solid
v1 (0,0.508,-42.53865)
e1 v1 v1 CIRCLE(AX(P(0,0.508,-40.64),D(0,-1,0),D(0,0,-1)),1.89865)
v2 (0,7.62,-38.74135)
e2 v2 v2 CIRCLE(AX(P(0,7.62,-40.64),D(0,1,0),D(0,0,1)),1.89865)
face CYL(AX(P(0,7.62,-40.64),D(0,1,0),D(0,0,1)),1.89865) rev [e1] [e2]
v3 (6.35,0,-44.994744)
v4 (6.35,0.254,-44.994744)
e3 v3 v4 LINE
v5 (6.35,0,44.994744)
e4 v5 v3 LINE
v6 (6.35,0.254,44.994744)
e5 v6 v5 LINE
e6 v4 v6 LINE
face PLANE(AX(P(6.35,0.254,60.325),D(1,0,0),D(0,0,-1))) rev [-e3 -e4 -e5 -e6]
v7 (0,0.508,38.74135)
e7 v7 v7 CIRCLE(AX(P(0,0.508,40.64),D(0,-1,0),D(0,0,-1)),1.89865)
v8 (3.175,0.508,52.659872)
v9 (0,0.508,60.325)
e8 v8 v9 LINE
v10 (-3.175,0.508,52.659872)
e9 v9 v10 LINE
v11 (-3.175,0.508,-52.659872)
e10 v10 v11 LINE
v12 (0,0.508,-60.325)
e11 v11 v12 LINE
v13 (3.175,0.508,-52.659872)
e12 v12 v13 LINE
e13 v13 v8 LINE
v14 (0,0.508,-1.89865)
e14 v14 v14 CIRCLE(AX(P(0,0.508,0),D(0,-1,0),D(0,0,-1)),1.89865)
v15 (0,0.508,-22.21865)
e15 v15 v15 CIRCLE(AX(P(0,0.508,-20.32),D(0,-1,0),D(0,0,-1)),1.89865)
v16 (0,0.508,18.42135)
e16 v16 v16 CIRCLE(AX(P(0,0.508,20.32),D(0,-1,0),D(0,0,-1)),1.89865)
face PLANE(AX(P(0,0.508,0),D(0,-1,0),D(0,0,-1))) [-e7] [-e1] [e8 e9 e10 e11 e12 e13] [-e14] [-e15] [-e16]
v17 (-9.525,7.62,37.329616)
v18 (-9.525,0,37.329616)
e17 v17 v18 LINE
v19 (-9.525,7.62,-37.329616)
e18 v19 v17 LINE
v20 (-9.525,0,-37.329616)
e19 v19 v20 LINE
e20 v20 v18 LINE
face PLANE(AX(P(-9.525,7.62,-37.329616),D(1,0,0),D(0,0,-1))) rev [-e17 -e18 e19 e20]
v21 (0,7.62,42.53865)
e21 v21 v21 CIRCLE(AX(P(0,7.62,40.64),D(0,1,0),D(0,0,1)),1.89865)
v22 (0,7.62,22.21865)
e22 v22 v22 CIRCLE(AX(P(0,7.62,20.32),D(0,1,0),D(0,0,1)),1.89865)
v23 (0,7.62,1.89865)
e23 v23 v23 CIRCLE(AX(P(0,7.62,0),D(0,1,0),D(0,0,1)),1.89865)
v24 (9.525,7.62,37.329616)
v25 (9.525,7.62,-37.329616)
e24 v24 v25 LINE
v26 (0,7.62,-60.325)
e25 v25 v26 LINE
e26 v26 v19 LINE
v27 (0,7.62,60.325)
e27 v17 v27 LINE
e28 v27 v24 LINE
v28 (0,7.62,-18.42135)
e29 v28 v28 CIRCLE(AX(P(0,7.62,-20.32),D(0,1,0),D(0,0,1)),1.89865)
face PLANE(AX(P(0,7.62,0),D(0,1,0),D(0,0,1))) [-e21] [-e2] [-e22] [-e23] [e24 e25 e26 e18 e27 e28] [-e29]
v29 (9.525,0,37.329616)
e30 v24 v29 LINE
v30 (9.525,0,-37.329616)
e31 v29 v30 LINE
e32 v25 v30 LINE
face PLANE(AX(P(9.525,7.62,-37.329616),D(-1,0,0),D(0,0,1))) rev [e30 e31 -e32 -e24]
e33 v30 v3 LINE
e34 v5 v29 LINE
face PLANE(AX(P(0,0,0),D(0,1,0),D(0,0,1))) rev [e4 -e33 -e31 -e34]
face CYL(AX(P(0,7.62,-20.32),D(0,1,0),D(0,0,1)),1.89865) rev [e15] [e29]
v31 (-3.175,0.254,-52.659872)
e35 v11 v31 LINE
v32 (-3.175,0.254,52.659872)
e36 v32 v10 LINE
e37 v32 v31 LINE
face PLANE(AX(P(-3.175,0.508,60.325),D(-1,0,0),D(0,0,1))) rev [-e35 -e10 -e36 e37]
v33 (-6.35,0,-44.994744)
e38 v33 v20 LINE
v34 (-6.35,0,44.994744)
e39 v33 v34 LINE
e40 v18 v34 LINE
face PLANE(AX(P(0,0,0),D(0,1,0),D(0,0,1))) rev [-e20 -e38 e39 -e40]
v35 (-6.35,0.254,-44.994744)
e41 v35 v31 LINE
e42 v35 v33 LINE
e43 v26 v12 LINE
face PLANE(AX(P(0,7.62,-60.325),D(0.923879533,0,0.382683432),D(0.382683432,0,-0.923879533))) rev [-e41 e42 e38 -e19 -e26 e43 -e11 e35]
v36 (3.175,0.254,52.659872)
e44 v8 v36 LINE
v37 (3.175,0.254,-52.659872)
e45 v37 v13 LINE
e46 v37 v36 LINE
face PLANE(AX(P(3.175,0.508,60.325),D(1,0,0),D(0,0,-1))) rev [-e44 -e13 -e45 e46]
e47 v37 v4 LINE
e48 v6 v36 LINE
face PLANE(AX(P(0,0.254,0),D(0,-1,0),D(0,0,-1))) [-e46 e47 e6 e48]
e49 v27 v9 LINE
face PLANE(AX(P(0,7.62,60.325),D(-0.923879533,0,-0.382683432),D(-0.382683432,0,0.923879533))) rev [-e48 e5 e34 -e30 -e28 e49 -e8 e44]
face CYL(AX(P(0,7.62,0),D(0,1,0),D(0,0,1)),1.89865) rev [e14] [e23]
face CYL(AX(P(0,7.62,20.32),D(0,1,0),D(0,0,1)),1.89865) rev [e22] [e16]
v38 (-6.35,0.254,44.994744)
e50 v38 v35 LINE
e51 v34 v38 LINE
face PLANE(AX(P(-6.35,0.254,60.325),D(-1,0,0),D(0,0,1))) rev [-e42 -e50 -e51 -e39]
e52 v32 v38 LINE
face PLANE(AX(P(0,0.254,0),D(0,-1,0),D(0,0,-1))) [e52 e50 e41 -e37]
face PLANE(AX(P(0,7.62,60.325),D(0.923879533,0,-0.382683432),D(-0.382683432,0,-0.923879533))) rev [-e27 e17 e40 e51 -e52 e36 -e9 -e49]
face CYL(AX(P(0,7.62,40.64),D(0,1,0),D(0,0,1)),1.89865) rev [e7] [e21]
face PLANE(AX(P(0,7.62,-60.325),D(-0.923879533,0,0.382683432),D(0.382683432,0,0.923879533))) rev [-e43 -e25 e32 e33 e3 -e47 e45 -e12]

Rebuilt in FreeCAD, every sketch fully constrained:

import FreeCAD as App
import Part
import Sketcher
from FreeCAD import Vector
Q = App.Units.Quantity

doc = App.newDocument("Part")
body = doc.addObject("PartDesign::Body", "Body")

# Sketch on XZ plane
sketch1 = body.newObject("Sketcher::SketchObject", "Sketch")
sketch1.AttachmentSupport = (doc.getObject("XZ_Plane"), [""])
sketch1.MapMode = "FlatFace"
sketch1.addGeometry([
    Part.LineSegment(Vector(0, -60, 0), Vector(-10, -37, 0)),  # 0
    Part.LineSegment(Vector(-10, -37, 0), Vector(-10, 37, 0)),  # 1
    Part.LineSegment(Vector(-10, 37, 0), Vector(0, 60, 0)),  # 2
    Part.LineSegment(Vector(0, 60, 0), Vector(10, 37, 0)),  # 3
    Part.LineSegment(Vector(10, 37, 0), Vector(10, -37, 0)),  # 4
    Part.LineSegment(Vector(10, -37, 0), Vector(0, -60, 0)),  # 5
], False)
sketch1.addConstraint([
    Sketcher.Constraint("Coincident", 0, 2, 1, 1),
    Sketcher.Constraint("Coincident", 1, 2, 2, 1),
    Sketcher.Constraint("Coincident", 2, 2, 3, 1),
    Sketcher.Constraint("Coincident", 3, 2, 4, 1),
    Sketcher.Constraint("Coincident", 4, 2, 5, 1),
    Sketcher.Constraint("Coincident", 5, 2, 0, 1),
    Sketcher.Constraint("Vertical", 1),
    Sketcher.Constraint("Vertical", 4),
    Sketcher.Constraint("Symmetric", 0, 2, 3, 2, -1, 1),
    Sketcher.Constraint("Symmetric", 2, 2, 5, 2, -1, 1),
    Sketcher.Constraint("PointOnObject", 2, 2, -2),
    Sketcher.Constraint("Parallel", 2, 5),
    Sketcher.Constraint("Horizontal", 1, 2, 3, 2),
    Sketcher.Constraint("Angle", 0, Q("112.5 deg")),
    Sketcher.Constraint("DistanceX", 1, 2, 3, 2, Q("0.75 in")),
    Sketcher.Constraint("DistanceY", 5, 2, 2, 2, Q("4.75 in")),
])
pad1 = body.newObject("PartDesign::Pad", "Pad")
pad1.Profile = sketch1
pad1.Length = Q("0.3 in")
pad1.Reversed = True

# Sketch on XZ plane
sketch2 = body.newObject("Sketcher::SketchObject", "Sketch001")
sketch2.AttachmentSupport = (doc.getObject("XZ_Plane"), [""])
sketch2.MapMode = "FlatFace"
sketch2.addGeometry([
    Part.LineSegment(Vector(-6, 60, 0), Vector(-6, -60, 0)),
    Part.LineSegment(Vector(-6, -60, 0), Vector(6, -60, 0)),
    Part.LineSegment(Vector(6, -60, 0), Vector(6, 60, 0)),
    Part.LineSegment(Vector(6, 60, 0), Vector(-6, 60, 0)),
], False)
sketch2.addConstraint([
    Sketcher.Constraint("Coincident", 0, 2, 1, 1),
    Sketcher.Constraint("Coincident", 1, 2, 2, 1),
    Sketcher.Constraint("Coincident", 2, 2, 3, 1),
    Sketcher.Constraint("Coincident", 3, 2, 0, 1),
    Sketcher.Constraint("Vertical", 0),
    Sketcher.Constraint("Horizontal", 1),
    Sketcher.Constraint("Vertical", 2),
    Sketcher.Constraint("Horizontal", 3),
    Sketcher.Constraint("Symmetric", 0, 2, 2, 2, -1, 1),
    Sketcher.Constraint("DistanceX", 1, 1, 1, 2, Q("0.5 in")),
    Sketcher.Constraint("DistanceY", 0, 2, 0, 1, Q("4.75 in")),
])
pocket1 = body.newObject("PartDesign::Pocket", "Pocket")
pocket1.Profile = sketch2
pocket1.Length = Q("0.01 in")

# Sketch on XZ plane
sketch3 = body.newObject("Sketcher::SketchObject", "Sketch002")
sketch3.AttachmentSupport = (doc.getObject("XZ_Plane"), [""])
sketch3.MapMode = "FlatFace"
sketch3.AttachmentOffset = App.Placement(Vector(0, 0, -0.01 * 25.4), App.Rotation())
sketch3.addGeometry([
    Part.LineSegment(Vector(-3, 60, 0), Vector(-3, -60, 0)),
    Part.LineSegment(Vector(-3, -60, 0), Vector(3, -60, 0)),
    Part.LineSegment(Vector(3, -60, 0), Vector(3, 60, 0)),
    Part.LineSegment(Vector(3, 60, 0), Vector(-3, 60, 0)),
], False)
sketch3.addConstraint([
    Sketcher.Constraint("Coincident", 0, 2, 1, 1),
    Sketcher.Constraint("Coincident", 1, 2, 2, 1),
    Sketcher.Constraint("Coincident", 2, 2, 3, 1),
    Sketcher.Constraint("Coincident", 3, 2, 0, 1),
    Sketcher.Constraint("Vertical", 0),
    Sketcher.Constraint("Horizontal", 1),
    Sketcher.Constraint("Vertical", 2),
    Sketcher.Constraint("Horizontal", 3),
    Sketcher.Constraint("Symmetric", 0, 2, 2, 2, -1, 1),
    Sketcher.Constraint("DistanceX", 1, 1, 1, 2, Q("0.25 in")),
    Sketcher.Constraint("DistanceY", 0, 2, 0, 1, Q("4.75 in")),
])
pocket2 = body.newObject("PartDesign::Pocket", "Pocket001")
pocket2.Profile = sketch3
pocket2.Length = Q("0.01 in")

# Sketch on XZ plane
sketch4 = body.newObject("Sketcher::SketchObject", "Sketch003")
sketch4.AttachmentSupport = (doc.getObject("XZ_Plane"), [""])
sketch4.MapMode = "FlatFace"
sketch4.AttachmentOffset = App.Placement(Vector(0, 0, -0.3 * 25.4), App.Rotation())
sketch4.addGeometry([
    Part.Circle(Vector(0, -20.3, 0), Vector(0, 0, 1), 1.9),  # 0
    Part.Circle(Vector(0, -40.6, 0), Vector(0, 0, 1), 1.9),  # 1
    Part.Circle(Vector(0, 0, 0), Vector(0, 0, 1), 1.9),  # 2
    Part.Circle(Vector(0, 20.3, 0), Vector(0, 0, 1), 1.9),  # 3
    Part.Circle(Vector(0, 40.6, 0), Vector(0, 0, 1), 1.9),  # 4
], False)
sketch4.addConstraint([
    Sketcher.Constraint("Coincident", 2, 3, -1, 1),
    Sketcher.Constraint("Equal", 0, 1),
    Sketcher.Constraint("Equal", 1, 2),
    Sketcher.Constraint("Equal", 2, 3),
    Sketcher.Constraint("Equal", 3, 4),
    Sketcher.Constraint("Symmetric", 0, 3, 3, 3, -1, 1),
    Sketcher.Constraint("Symmetric", 1, 3, 4, 3, -1, 1),
    Sketcher.Constraint("PointOnObject", 0, 3, -2),
    Sketcher.Constraint("PointOnObject", 1, 3, -2),
    Sketcher.Constraint("Diameter", 0, Q("0.1495 in")),
    Sketcher.Constraint("DistanceY", 0, 3, -1, 1, Q("0.8 in")),
    Sketcher.Constraint("DistanceY", 1, 3, -1, 1, Q("1.6 in")),
])
doc.recompute()
hole = body.newObject("PartDesign::Hole", "Hole")
hole.Profile = sketch4
hole.ThreadType = "None"
hole.Diameter = Q("0.1495 in")
hole.DepthType = "ThroughAll"
hole.Reversed = True

doc.recompute()
